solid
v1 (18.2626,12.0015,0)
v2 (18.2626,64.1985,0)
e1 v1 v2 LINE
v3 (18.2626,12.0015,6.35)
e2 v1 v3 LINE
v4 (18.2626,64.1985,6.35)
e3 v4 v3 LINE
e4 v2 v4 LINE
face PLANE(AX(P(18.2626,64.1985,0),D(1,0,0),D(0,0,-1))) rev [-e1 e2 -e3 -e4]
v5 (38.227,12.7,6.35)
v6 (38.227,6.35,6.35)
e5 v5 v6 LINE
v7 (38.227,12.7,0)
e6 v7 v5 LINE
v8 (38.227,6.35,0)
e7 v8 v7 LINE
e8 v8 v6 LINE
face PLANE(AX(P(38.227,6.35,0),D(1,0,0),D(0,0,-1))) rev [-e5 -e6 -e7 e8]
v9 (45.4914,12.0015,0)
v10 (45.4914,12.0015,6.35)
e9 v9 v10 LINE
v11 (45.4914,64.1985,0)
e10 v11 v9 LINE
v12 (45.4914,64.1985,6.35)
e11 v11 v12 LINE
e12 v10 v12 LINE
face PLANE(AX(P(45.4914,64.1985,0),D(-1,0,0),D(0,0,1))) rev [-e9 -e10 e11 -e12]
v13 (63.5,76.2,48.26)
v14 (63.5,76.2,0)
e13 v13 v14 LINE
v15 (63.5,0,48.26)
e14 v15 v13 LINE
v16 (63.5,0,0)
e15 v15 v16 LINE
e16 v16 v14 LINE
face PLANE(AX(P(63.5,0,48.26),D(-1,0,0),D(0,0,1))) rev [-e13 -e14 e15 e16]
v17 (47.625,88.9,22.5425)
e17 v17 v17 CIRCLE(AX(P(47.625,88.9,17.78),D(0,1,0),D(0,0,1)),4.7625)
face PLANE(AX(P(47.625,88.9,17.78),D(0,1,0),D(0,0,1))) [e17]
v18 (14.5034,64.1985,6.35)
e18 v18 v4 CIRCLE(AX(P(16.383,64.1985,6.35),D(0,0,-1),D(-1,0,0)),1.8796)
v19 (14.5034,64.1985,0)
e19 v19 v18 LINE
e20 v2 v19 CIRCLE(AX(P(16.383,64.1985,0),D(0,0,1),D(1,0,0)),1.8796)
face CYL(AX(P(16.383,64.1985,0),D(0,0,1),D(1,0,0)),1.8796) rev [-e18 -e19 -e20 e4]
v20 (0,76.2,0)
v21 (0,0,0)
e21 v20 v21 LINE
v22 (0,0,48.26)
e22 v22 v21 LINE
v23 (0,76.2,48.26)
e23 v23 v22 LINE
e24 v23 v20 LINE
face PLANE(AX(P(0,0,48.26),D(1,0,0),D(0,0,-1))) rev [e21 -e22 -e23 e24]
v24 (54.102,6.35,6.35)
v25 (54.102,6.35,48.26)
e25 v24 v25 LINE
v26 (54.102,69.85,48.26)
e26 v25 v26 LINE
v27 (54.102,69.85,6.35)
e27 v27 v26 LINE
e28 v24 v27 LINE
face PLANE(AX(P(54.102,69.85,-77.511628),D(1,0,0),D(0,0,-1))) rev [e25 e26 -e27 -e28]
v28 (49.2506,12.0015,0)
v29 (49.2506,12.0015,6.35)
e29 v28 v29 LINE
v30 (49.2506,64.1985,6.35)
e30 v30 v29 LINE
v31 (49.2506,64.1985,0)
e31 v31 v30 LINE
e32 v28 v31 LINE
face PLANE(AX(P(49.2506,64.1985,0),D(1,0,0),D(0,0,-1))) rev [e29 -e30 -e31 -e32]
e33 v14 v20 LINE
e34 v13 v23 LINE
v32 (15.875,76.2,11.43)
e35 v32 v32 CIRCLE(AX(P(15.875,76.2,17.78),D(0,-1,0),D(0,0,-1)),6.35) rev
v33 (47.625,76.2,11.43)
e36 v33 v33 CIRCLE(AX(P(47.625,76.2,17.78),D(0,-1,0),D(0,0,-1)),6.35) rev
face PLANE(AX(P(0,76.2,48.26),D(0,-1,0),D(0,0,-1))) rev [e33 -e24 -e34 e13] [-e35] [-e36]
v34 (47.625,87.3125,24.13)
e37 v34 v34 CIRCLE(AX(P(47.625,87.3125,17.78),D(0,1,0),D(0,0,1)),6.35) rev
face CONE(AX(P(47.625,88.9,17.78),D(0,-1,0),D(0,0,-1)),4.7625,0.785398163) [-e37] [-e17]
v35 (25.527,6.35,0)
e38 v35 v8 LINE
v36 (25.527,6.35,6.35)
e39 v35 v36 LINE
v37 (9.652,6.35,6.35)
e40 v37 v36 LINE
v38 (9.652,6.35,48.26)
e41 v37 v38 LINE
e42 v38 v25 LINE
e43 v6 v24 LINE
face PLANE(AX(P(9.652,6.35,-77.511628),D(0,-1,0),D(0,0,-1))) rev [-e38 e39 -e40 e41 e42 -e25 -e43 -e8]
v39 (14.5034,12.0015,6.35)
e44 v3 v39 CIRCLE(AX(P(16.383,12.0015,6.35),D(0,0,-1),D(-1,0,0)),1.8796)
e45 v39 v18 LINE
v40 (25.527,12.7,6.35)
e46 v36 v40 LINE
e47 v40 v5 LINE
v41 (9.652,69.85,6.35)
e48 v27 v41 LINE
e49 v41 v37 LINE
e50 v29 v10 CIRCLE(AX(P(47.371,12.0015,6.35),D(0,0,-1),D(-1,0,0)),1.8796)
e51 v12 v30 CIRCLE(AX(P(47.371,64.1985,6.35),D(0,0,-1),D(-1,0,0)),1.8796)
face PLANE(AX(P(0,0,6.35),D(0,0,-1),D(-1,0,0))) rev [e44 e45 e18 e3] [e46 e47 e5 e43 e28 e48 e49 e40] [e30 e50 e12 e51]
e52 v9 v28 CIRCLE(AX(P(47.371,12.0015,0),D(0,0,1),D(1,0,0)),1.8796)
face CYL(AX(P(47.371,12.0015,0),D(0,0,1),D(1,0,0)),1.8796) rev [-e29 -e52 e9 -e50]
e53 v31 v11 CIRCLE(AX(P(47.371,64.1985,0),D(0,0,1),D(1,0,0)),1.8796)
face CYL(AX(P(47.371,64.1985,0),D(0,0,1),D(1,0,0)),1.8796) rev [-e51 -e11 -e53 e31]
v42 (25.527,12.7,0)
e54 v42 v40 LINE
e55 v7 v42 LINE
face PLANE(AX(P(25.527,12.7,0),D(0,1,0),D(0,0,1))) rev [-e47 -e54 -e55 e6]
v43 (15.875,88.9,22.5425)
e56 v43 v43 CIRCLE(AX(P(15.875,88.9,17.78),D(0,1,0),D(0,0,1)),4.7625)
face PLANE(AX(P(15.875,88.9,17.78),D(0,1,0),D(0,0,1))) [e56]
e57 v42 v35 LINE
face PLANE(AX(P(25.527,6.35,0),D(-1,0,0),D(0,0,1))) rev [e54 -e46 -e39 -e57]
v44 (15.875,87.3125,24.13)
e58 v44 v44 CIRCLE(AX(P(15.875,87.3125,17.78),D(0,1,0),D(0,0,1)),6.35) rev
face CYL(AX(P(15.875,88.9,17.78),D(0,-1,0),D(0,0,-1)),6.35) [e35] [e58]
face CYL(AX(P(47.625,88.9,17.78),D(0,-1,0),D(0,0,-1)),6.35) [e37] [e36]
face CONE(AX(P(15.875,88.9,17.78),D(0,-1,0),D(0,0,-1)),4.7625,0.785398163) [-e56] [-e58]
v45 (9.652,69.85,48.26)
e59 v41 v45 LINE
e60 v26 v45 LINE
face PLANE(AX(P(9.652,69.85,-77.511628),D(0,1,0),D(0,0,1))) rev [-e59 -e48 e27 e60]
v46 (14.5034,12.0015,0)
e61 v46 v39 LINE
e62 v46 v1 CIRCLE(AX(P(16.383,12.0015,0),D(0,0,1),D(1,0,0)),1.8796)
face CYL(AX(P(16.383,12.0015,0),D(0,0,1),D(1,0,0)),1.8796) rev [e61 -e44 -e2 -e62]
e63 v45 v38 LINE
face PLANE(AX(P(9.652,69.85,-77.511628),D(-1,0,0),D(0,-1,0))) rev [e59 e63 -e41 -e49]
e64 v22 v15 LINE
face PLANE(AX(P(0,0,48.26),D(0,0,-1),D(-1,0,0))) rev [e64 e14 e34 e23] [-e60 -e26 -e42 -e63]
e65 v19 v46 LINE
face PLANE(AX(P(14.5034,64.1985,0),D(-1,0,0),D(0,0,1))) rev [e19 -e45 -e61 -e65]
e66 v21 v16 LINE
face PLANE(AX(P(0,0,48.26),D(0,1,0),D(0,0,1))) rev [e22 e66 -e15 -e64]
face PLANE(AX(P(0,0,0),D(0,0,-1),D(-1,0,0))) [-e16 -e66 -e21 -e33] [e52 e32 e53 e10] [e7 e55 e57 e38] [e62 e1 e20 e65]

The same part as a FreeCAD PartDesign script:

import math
import FreeCAD as App
import Part
import Sketcher
from FreeCAD import Vector
Q = App.Units.Quantity


def edges_at(feature, points):
    """Names of the edges that pass closest to the given points."""
    edges = feature.Shape.Edges
    near = lambda p: min(range(len(edges)), key=lambda i: edges[i].distToShape(Part.Vertex(*p))[0])
    return sorted({f"Edge{near(p) + 1}" for p in points})

doc = App.newDocument("Part")
body = doc.addObject("PartDesign::Body", "Body")

# Sketch on XY plane
sketch1 = doc.addObject("Sketcher::SketchObject", "Sketch")
body.addObject(sketch1)
sketch1.AttachmentSupport = (doc.XY_Plane, [""])
sketch1.MapMode = "FlatFace"
sketch1.addGeometry(Part.LineSegment(Vector(0, 76, 0), Vector(0, 0, 0)), False)
sketch1.addGeometry(Part.LineSegment(Vector(0, 0, 0), Vector(64, 0, 0)), False)
sketch1.addGeometry(Part.LineSegment(Vector(64, 0, 0), Vector(64, 76, 0)), False)
sketch1.addGeometry(Part.LineSegment(Vector(64, 76, 0), Vector(0, 76, 0)), False)
sketch1.addConstraint(Sketcher.Constraint("Coincident", 0, 2, 1, 1))
sketch1.addConstraint(Sketcher.Constraint("Coincident", 1, 2, 2, 1))
sketch1.addConstraint(Sketcher.Constraint("Coincident", 2, 2, 3, 1))
sketch1.addConstraint(Sketcher.Constraint("Coincident", 3, 2, 0, 1))
sketch1.addConstraint(Sketcher.Constraint("Vertical", 0))
sketch1.addConstraint(Sketcher.Constraint("Horizontal", 1))
sketch1.addConstraint(Sketcher.Constraint("Vertical", 2))
sketch1.addConstraint(Sketcher.Constraint("Horizontal", 3))
sketch1.addConstraint(Sketcher.Constraint("Coincident", 0, 2, -1, 1))
sketch1.addConstraint(Sketcher.Constraint("DistanceY", 0, 2, 0, 1, Q("3 in")))
sketch1.addConstraint(Sketcher.Constraint("DistanceX", 1, 1, 1, 2, Q("2.5 in")))
pad1 = doc.addObject("PartDesign::Pad", "Pad")
body.addObject(pad1)
pad1.Profile = sketch1
pad1.Length = Q("1.9 in")

# Sketch on XY plane
sketch2 = doc.addObject("Sketcher::SketchObject", "Sketch001")
body.addObject(sketch2)
sketch2.AttachmentSupport = (doc.XY_Plane, [""])
sketch2.MapMode = "FlatFace"
sketch2.AttachmentOffset = App.Placement(Vector(0, 0, 1.9 * 25.4), App.Rotation())
sketch2.addGeometry(Part.LineSegment(Vector(10, 70, 0), Vector(10, 6, 0)), False)
sketch2.addGeometry(Part.LineSegment(Vector(10, 6, 0), Vector(54, 6, 0)), False)
sketch2.addGeometry(Part.LineSegment(Vector(54, 6, 0), Vector(54, 70, 0)), False)
sketch2.addGeometry(Part.LineSegment(Vector(54, 70, 0), Vector(10, 70, 0)), False)
sketch2.addConstraint(Sketcher.Constraint("Coincident", 0, 2, 1, 1))
sketch2.addConstraint(Sketcher.Constraint("Coincident", 1, 2, 2, 1))
sketch2.addConstraint(Sketcher.Constraint("Coincident", 2, 2, 3, 1))
sketch2.addConstraint(Sketcher.Constraint("Coincident", 3, 2, 0, 1))
sketch2.addConstraint(Sketcher.Constraint("Vertical", 0))
sketch2.addConstraint(Sketcher.Constraint("Horizontal", 1))
sketch2.addConstraint(Sketcher.Constraint("Vertical", 2))
sketch2.addConstraint(Sketcher.Constraint("Horizontal", 3))
sketch2.addConstraint(Sketcher.Constraint("DistanceY", 0, 2, 0, 1, Q("2.5 in")))
sketch2.addConstraint(Sketcher.Constraint("DistanceX", 1, 1, 1, 2, Q("1.75 in")))
sketch2.addConstraint(Sketcher.Constraint("DistanceX", -1, 1, 0, 2, Q("0.38 in")))
sketch2.addConstraint(Sketcher.Constraint("DistanceY", -1, 1, 0, 2, Q("0.25 in")))
pocket1 = doc.addObject("PartDesign::Pocket", "Pocket")
body.addObject(pocket1)
pocket1.Profile = sketch2
pocket1.Length = Q("1.65 in")

# Sketch on XY plane
sketch3 = doc.addObject("Sketcher::SketchObject", "Sketch002")
body.addObject(sketch3)
sketch3.AttachmentSupport = (doc.XY_Plane, [""])
sketch3.MapMode = "FlatFace"
sketch3.AttachmentOffset = App.Placement(Vector(0, 0, 0.25 * 25.4), App.Rotation())
sketch3.addGeometry(Part.LineSegment(Vector(25.5, 12.7, 0), Vector(25.5, 6.3, 0)), False)
sketch3.addGeometry(Part.LineSegment(Vector(25.5, 6.3, 0), Vector(38.2, 6.3, 0)), False)
sketch3.addGeometry(Part.LineSegment(Vector(38.2, 6.3, 0), Vector(38.2, 12.7, 0)), False)
sketch3.addGeometry(Part.LineSegment(Vector(38.2, 12.7, 0), Vector(25.5, 12.7, 0)), False)
sketch3.addGeometry(Part.LineSegment(Vector(18.3, 12, 0), Vector(18.3, 64.2, 0)), False)
sketch3.addGeometry(Part.ArcOfCircle(Part.Circle(Vector(16.4, 64.2, 0), Vector(0, 0, 1), 1.9), math.radians(0), math.radians(180)), False)
sketch3.addGeometry(Part.LineSegment(Vector(14.5, 64.2, 0), Vector(14.5, 12, 0)), False)
sketch3.addGeometry(Part.ArcOfCircle(Part.Circle(Vector(16.4, 12, 0), Vector(0, 0, 1), 1.9), math.radians(180), math.radians(360)), False)
sketch3.addGeometry(Part.LineSegment(Vector(49.3, 12, 0), Vector(49.3, 64.2, 0)), False)
sketch3.addGeometry(Part.ArcOfCircle(Part.Circle(Vector(47.4, 64.2, 0), Vector(0, 0, 1), 1.9), math.radians(0), math.radians(180)), False)
sketch3.addGeometry(Part.LineSegment(Vector(45.5, 64.2, 0), Vector(45.5, 12, 0)), False)
sketch3.addGeometry(Part.ArcOfCircle(Part.Circle(Vector(47.4, 12, 0), Vector(0, 0, 1), 1.9), math.radians(180), math.radians(360)), False)
sketch3.addConstraint(Sketcher.Constraint("Coincident", 0, 2, 1, 1))
sketch3.addConstraint(Sketcher.Constraint("Coincident", 1, 2, 2, 1))
sketch3.addConstraint(Sketcher.Constraint("Coincident", 2, 2, 3, 1))
sketch3.addConstraint(Sketcher.Constraint("Coincident", 3, 2, 0, 1))
sketch3.addConstraint(Sketcher.Constraint("Tangent", 4, 2, 5, 1))
sketch3.addConstraint(Sketcher.Constraint("Tangent", 5, 2, 6, 1))
sketch3.addConstraint(Sketcher.Constraint("Tangent", 6, 2, 7, 1))
sketch3.addConstraint(Sketcher.Constraint("Tangent", 7, 2, 4, 1))
sketch3.addConstraint(Sketcher.Constraint("Tangent", 8, 2, 9, 1))
sketch3.addConstraint(Sketcher.Constraint("Tangent", 9, 2, 10, 1))
sketch3.addConstraint(Sketcher.Constraint("Tangent", 10, 2, 11, 1))
sketch3.addConstraint(Sketcher.Constraint("Tangent", 11, 2, 8, 1))
sketch3.addConstraint(Sketcher.Constraint("Vertical", 0))
sketch3.addConstraint(Sketcher.Constraint("Horizontal", 1))
sketch3.addConstraint(Sketcher.Constraint("Vertical", 2))
sketch3.addConstraint(Sketcher.Constraint("Horizontal", 3))
sketch3.addConstraint(Sketcher.Constraint("Vertical", 4))
sketch3.addConstraint(Sketcher.Constraint("Vertical", 6))
sketch3.addConstraint(Sketcher.Constraint("Vertical", 8))
sketch3.addConstraint(Sketcher.Constraint("Vertical", 10))
sketch3.addConstraint(Sketcher.Constraint("Equal", 7, 9))
sketch3.addConstraint(Sketcher.Constraint("Horizontal", 5, 3, 9, 3))
sketch3.addConstraint(Sketcher.Constraint("Horizontal", 7, 3, 11, 3))
sketch3.addConstraint(Sketcher.Constraint("DistanceX", 1, 1, 1, 2, Q("0.5 in")))
sketch3.addConstraint(Sketcher.Constraint("Radius", 5, Q("0.074 in")))
sketch3.addConstraint(Sketcher.Constraint("DistanceY", 0, 2, 0, 1, Q("0.25 in")))
sketch3.addConstraint(Sketcher.Constraint("DistanceY", -1, 1, 2, 2, Q("0.5 in")))
sketch3.addConstraint(Sketcher.Constraint("DistanceY", 4, 1, 4, 2, Q("2.055 in")))
sketch3.addConstraint(Sketcher.Constraint("DistanceX", 5, 3, 9, 3, Q("1.22 in")))
sketch3.addConstraint(Sketcher.Constraint("DistanceX", 7, 3, 0, 2, Q("0.36 in")))
sketch3.addConstraint(Sketcher.Constraint("DistanceX", -1, 1, 5, 3, Q("0.645 in")))
sketch3.addConstraint(Sketcher.Constraint("DistanceY", -1, 1, 5, 3, Q("2.5275 in")))
pocket2 = doc.addObject("PartDesign::Pocket", "Pocket001")
body.addObject(pocket2)
pocket2.Profile = sketch3
pocket2.Type = "ThroughAll"
pocket2.Midplane = True

# Sketch on XZ plane
sketch4 = doc.addObject("Sketcher::SketchObject", "Sketch003")
body.addObject(sketch4)
sketch4.AttachmentSupport = (doc.XZ_Plane, [""])
sketch4.MapMode = "FlatFace"
sketch4.AttachmentOffset = App.Placement(Vector(0, 0, -3 * 25.4), App.Rotation())
sketch4.addGeometry(Part.Circle(Vector(16, 18, 0), Vector(0, 0, 1), 6), False)
sketch4.addGeometry(Part.Circle(Vector(48, 18, 0), Vector(0, 0, 1), 6), False)
sketch4.addConstraint(Sketcher.Constraint("Equal", 0, 1))
sketch4.addConstraint(Sketcher.Constraint("Horizontal", 0, 3, 1, 3))
sketch4.addConstraint(Sketcher.Constraint("Diameter", 0, Q("0.5 in")))
sketch4.addConstraint(Sketcher.Constraint("DistanceY", -1, 1, 0, 3, Q("0.7 in")))
sketch4.addConstraint(Sketcher.Constraint("DistanceX", 0, 3, 1, 3, Q("1.25 in")))
sketch4.addConstraint(Sketcher.Constraint("DistanceX", -1, 1, 0, 3, Q("0.625 in")))
pad2 = doc.addObject("PartDesign::Pad", "Pad001")
body.addObject(pad2)
pad2.Profile = sketch4
pad2.Length = Q("0.5 in")
pad2.Reversed = True
doc.recompute()

chamfer = doc.addObject("PartDesign::Chamfer", "Chamfer")
body.addObject(chamfer)
chamfer.Base = (pad2, edges_at(pad2, [(15.875, 88.9, 24.13), (47.625, 88.9, 24.13)]))
chamfer.Size = Q("0.0625 in")

doc.recompute()
